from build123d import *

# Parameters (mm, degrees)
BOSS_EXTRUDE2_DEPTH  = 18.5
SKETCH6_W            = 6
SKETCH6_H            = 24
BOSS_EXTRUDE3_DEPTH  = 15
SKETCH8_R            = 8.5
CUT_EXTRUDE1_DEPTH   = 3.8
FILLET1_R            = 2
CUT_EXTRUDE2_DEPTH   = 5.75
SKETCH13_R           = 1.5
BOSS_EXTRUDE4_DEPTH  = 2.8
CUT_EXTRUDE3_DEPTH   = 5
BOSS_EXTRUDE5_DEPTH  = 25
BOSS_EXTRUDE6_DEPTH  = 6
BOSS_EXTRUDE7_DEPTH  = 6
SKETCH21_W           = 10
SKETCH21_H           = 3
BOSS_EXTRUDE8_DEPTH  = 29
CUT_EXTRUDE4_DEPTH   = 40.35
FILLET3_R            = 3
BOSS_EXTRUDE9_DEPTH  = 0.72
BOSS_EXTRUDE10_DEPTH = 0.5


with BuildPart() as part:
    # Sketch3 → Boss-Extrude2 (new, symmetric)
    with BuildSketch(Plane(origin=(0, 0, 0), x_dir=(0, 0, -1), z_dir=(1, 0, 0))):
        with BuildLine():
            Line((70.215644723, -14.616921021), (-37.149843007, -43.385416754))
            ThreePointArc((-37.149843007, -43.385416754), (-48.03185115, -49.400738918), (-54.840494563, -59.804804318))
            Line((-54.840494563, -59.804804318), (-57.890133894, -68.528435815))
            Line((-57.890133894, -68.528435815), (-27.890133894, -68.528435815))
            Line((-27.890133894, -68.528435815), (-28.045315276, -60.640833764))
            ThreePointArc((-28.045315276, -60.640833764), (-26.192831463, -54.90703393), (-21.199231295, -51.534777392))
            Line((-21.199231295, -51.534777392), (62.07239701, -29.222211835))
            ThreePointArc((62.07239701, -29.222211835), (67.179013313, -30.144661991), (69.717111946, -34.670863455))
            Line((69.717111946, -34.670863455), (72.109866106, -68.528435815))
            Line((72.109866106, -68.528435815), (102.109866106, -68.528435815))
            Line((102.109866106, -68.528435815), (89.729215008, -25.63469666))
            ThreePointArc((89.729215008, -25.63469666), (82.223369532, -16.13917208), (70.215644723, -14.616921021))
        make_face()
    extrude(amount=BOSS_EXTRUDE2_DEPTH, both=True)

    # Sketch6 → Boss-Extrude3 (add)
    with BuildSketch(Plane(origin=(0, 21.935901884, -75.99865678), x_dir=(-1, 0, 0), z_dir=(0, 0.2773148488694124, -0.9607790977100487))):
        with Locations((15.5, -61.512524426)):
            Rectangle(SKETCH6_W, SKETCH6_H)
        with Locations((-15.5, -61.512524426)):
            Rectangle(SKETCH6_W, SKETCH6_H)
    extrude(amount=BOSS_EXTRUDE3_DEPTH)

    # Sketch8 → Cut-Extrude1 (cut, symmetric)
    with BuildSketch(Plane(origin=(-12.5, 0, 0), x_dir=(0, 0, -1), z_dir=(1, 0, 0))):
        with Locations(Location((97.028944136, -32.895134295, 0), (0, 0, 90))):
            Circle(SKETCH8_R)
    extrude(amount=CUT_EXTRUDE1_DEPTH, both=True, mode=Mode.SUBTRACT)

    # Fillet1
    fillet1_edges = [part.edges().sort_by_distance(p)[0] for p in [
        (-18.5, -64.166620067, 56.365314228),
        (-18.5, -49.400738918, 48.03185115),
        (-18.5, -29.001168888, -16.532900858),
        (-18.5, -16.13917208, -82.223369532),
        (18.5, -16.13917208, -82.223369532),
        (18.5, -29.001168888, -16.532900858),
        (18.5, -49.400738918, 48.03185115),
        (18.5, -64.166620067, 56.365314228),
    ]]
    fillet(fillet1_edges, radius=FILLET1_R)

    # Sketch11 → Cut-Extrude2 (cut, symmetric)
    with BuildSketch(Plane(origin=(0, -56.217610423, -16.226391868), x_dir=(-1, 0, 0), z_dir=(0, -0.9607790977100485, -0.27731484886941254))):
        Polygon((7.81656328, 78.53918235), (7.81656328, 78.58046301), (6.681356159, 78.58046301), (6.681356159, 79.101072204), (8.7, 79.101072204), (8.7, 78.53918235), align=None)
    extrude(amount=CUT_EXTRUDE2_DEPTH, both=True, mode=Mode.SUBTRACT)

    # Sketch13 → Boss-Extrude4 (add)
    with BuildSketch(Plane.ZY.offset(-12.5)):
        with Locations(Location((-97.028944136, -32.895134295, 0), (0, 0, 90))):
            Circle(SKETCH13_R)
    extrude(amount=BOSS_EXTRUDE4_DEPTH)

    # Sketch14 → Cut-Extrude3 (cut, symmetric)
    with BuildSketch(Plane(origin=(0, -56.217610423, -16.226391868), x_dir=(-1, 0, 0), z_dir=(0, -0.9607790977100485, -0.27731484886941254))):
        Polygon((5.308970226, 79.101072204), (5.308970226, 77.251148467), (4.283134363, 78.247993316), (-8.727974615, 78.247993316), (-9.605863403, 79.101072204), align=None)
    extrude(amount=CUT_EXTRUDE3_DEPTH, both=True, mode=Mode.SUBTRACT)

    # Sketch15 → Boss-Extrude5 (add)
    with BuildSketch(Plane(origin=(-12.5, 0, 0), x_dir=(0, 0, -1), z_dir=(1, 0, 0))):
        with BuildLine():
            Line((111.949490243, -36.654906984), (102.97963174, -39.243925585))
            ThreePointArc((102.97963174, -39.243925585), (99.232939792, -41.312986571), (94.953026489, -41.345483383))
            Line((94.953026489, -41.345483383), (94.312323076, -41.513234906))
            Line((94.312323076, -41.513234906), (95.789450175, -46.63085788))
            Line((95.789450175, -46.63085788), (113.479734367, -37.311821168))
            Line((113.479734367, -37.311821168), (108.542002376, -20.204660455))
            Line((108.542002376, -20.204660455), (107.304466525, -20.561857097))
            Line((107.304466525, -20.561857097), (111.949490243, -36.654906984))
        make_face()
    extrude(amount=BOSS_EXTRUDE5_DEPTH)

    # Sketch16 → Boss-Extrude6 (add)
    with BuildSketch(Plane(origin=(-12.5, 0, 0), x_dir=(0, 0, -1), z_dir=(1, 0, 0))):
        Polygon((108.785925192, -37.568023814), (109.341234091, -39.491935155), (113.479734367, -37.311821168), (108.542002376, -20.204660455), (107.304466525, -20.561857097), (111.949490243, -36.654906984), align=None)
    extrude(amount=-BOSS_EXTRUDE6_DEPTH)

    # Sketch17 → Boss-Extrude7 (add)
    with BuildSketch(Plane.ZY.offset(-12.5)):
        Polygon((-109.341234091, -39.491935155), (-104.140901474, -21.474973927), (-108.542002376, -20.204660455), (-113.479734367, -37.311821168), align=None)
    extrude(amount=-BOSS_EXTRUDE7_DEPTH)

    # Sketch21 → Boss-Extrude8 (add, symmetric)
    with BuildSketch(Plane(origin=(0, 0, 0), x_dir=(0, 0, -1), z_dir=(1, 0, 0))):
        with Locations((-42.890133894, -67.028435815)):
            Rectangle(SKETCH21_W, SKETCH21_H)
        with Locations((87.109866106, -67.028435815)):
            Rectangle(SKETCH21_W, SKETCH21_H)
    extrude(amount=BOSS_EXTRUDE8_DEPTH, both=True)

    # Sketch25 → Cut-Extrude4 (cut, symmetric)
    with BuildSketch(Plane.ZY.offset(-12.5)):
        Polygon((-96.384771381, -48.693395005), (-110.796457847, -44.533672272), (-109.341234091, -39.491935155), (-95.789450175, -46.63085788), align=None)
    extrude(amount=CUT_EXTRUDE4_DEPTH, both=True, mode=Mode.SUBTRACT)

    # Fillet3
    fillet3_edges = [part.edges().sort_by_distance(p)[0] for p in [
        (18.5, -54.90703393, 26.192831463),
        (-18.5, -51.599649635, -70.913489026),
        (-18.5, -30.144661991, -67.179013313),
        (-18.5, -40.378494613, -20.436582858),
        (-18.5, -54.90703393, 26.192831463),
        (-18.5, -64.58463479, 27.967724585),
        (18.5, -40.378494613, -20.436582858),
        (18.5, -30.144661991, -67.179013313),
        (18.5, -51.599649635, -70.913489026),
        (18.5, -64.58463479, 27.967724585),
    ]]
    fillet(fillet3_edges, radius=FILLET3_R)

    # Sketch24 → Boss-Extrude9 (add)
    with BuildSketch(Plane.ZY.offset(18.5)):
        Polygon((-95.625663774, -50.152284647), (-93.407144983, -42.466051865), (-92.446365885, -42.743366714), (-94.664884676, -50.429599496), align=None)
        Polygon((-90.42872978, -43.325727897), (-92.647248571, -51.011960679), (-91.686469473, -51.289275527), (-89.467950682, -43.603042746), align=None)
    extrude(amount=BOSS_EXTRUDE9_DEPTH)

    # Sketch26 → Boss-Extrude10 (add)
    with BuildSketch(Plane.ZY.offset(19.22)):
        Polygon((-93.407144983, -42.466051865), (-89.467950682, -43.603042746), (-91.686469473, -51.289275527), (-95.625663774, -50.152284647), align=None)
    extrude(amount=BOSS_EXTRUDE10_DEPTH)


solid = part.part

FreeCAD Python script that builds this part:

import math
import FreeCAD as App
import Part
import Sketcher

V = App.Vector
Q = App.Units.Quantity


def edges_at(feature, points):
    """Names of the edges that pass closest to the given points."""
    edges = feature.Shape.Edges
    near = lambda p: min(range(len(edges)), key=lambda i: edges[i].distToShape(Part.Vertex(*p))[0])
    return sorted({f"Edge{near(p) + 1}" for p in points})

doc = App.newDocument("Part")
params = doc.addObject("Spreadsheet::Sheet", "Params")
for row, (alias, value) in enumerate([
    ("sketch1_radius", "16 mm"),
    ("sketch1_height", "30 mm"),
    ("pad1_length", "37 mm"),
    ("sketch2_width", "6 mm"),
    ("sketch2_height", "24 mm"),
    ("pad2_length", "15 mm"),
    ("sketch3_diameter", "17 mm"),
    ("pocket1_length", "7.6 mm"),
    ("fillet_radius", "2 mm"),
    ("pocket2_length", "11.5 mm"),
    ("sketch5_diameter", "3 mm"),
    ("pad3_length", "2.8 mm"),
    ("pocket3_length", "10 mm"),
    ("sketch7_length", "16.75 mm"),
    ("pad4_length", "25 mm"),
    ("sketch8_length", "16.75 mm"),
    ("pad5_length", "6 mm"),
    ("pad6_length", "6 mm"),
    ("sketch10_width", "3 mm"),
    ("sketch10_height", "10 mm"),
    ("pad7_length", "58 mm"),
    ("sketch11_length", "15 mm"),
    ("pocket4_length", "80.7 mm"),
    ("fillet2_radius", "3 mm"),
    ("sketch12_length", "8 mm"),
    ("sketch12_length2", "1 mm"),
    ("pad8_length", "0.72 mm"),
    ("sketch13_length", "8 mm"),
    ("sketch13_length2", "4.1 mm"),
    ("pad9_length", "0.5 mm"),
], start=1):
    params.set(f"A{row}", alias)
    params.set(f"B{row}", "=" + value)
    params.setAlias(f"B{row}", alias)

body = doc.addObject("PartDesign::Body", "Body")

# Sketch on YZ plane
sketch1 = body.newObject("Sketcher::SketchObject", "Sketch")
sketch1.AttachmentSupport = (doc.getObject("YZ_Plane"), [""])
sketch1.MapMode = "FlatFace"
sketch1.addGeometry(Part.LineSegment(V(-15, -70, 0), V(-43, 37, 0)), False)
sketch1.addGeometry(Part.ArcOfCircle(Part.Circle(V(-68, 30, 0), V(0, 0, 1), 26), math.radians(15), math.radians(71)), False)
sketch1.addGeometry(Part.LineSegment(V(-60, 55, 0), V(-69, 58, 0)), False)
sketch1.addGeometry(Part.LineSegment(V(-69, 58, 0), V(-69, 28, 0)), False)
sketch1.addGeometry(Part.LineSegment(V(-69, 28, 0), V(-61, 28, 0)), False)
sketch1.addGeometry(Part.ArcOfCircle(Part.Circle(V(-60, 19, 0), V(0, 0, 1), 9), math.radians(15), math.radians(91)), False)
sketch1.addGeometry(Part.LineSegment(V(-52, 21, 0), V(-29, -62, 0)), False)
sketch1.addGeometry(Part.ArcOfCircle(Part.Circle(V(-35, -64, 0), V(0, 0, 1), 6), math.radians(-86), math.radians(15)), False)
sketch1.addGeometry(Part.LineSegment(V(-35, -70, 0), V(-69, -72, 0)), False)
sketch1.addGeometry(Part.LineSegment(V(-69, -72, 0), V(-69, -102, 0)), False)
sketch1.addGeometry(Part.LineSegment(V(-69, -102, 0), V(-26, -90, 0)), False)
sketch1.addGeometry(Part.ArcOfCircle(Part.Circle(V(-30, -74, 0), V(0, 0, 1), 16), math.radians(-74), math.radians(15)), False)
sketch1.addConstraint(Sketcher.Constraint("Tangent", 0, 2, 1, 1))
sketch1.addConstraint(Sketcher.Constraint("Tangent", 1, 2, 2, 1))
sketch1.addConstraint(Sketcher.Constraint("Coincident", 2, 2, 3, 1))
sketch1.addConstraint(Sketcher.Constraint("Coincident", 3, 2, 4, 1))
sketch1.addConstraint(Sketcher.Constraint("Tangent", 4, 2, 5, 2))
sketch1.addConstraint(Sketcher.Constraint("Tangent", 5, 1, 6, 1))
sketch1.addConstraint(Sketcher.Constraint("Tangent", 6, 2, 7, 2))
sketch1.addConstraint(Sketcher.Constraint("Tangent", 7, 1, 8, 1))
sketch1.addConstraint(Sketcher.Constraint("Coincident", 8, 2, 9, 1))
sketch1.addConstraint(Sketcher.Constraint("Coincident", 9, 2, 10, 1))
sketch1.addConstraint(Sketcher.Constraint("Tangent", 10, 2, 11, 1))
sketch1.addConstraint(Sketcher.Constraint("Tangent", 11, 2, 0, 1))
sketch1.addConstraint(Sketcher.Constraint("Vertical", 3))
sketch1.addConstraint(Sketcher.Constraint("Vertical", 9))
sketch1.addConstraint(Sketcher.Constraint("Parallel", 0, 6))
sketch1.addConstraint(Sketcher.Constraint("Vertical", 3, 2, 8, 2))
sketch1.addConstraint(Sketcher.Constraint("Equal", 3, 9))
sketch1.addConstraint(Sketcher.Constraint("Radius", 11, 16.0))
sketch1.addConstraint(Sketcher.Constraint("DistanceY", 3, 2, 3, 1, 30.0))
sketch1.addConstraint(Sketcher.Constraint("Angle", 0, Q("105 deg")))
sketch1.addConstraint(Sketcher.Constraint("Angle", 10, Q("16.100012 deg")))
sketch1.addConstraint(Sketcher.Constraint("Radius", 1, 25.819671))
sketch1.addConstraint(Sketcher.Constraint("Radius", 5, 9.239136))
sketch1.addConstraint(Sketcher.Constraint("Radius", 7, 6.084952))
sketch1.addConstraint(Sketcher.Constraint("DistanceY", 7, 3, -1, 1, 63.647299))
sketch1.addConstraint(Sketcher.Constraint("DistanceX", 1, 3, 1, 2, 8.520499))
sketch1.addConstraint(Sketcher.Constraint("DistanceX", 8, 2, 11, 3, 38.456702))
sketch1.addConstraint(Sketcher.Constraint("Distance", 4, 7.889128))
sketch1.addConstraint(Sketcher.Constraint("DistanceY", -1, 1, 1, 3, 30.46722))
sketch1.addConstraint(Sketcher.Constraint("DistanceY", 11, 3, -1, 1, 74.356749))
sketch1.addConstraint(Sketcher.Constraint("DistanceY", -1, 1, 5, 1, 21.199231))
sketch1.addConstraint(Sketcher.Constraint("DistanceX", 6, 2, -1, 1, 29.222212))
sketch1.setExpression("Constraints[17]", "Params.sketch1_radius")
sketch1.setExpression("Constraints[18]", "Params.sketch1_height")
pad1 = body.newObject("PartDesign::Pad", "Pad")
pad1.Profile = sketch1
pad1.setExpression("Length", "Params.pad1_length")
pad1.Midplane = True

# Sketch on an angled plane
sketch2 = body.newObject("Sketcher::SketchObject", "Sketch001")
sketch2.Placement = App.Placement(V(0, 21.935902, -75.998657), App.Rotation(V(-1, 0, 0), V(0, 0.960779098, 0.277314849), V(0, 0.277314849, -0.960779098), "ZXY"))
sketch2.addGeometry(Part.LineSegment(V(12, -50, 0), V(12, -74, 0)), False)
sketch2.addGeometry(Part.LineSegment(V(12, -74, 0), V(18, -74, 0)), False)
sketch2.addGeometry(Part.LineSegment(V(18, -74, 0), V(18, -50, 0)), False)
sketch2.addGeometry(Part.LineSegment(V(18, -50, 0), V(12, -50, 0)), False)
sketch2.addGeometry(Part.LineSegment(V(-18, -50, 0), V(-18, -74, 0)), False)
sketch2.addGeometry(Part.LineSegment(V(-18, -74, 0), V(-12, -74, 0)), False)
sketch2.addGeometry(Part.LineSegment(V(-12, -74, 0), V(-12, -50, 0)), False)
sketch2.addGeometry(Part.LineSegment(V(-12, -50, 0), V(-18, -50, 0)), False)
sketch2.addConstraint(Sketcher.Constraint("Coincident", 0, 2, 1, 1))
sketch2.addConstraint(Sketcher.Constraint("Coincident", 1, 2, 2, 1))
sketch2.addConstraint(Sketcher.Constraint("Coincident", 2, 2, 3, 1))
sketch2.addConstraint(Sketcher.Constraint("Coincident", 3, 2, 0, 1))
sketch2.addConstraint(Sketcher.Constraint("Coincident", 4, 2, 5, 1))
sketch2.addConstraint(Sketcher.Constraint("Coincident", 5, 2, 6, 1))
sketch2.addConstraint(Sketcher.Constraint("Coincident", 6, 2, 7, 1))
sketch2.addConstraint(Sketcher.Constraint("Coincident", 7, 2, 4, 1))
sketch2.addConstraint(Sketcher.Constraint("Vertical", 0))
sketch2.addConstraint(Sketcher.Constraint("Horizontal", 1))
sketch2.addConstraint(Sketcher.Constraint("Vertical", 2))
sketch2.addConstraint(Sketcher.Constraint("Horizontal", 3))
sketch2.addConstraint(Sketcher.Constraint("Vertical", 4))
sketch2.addConstraint(Sketcher.Constraint("Horizontal", 5))
sketch2.addConstraint(Sketcher.Constraint("Vertical", 6))
sketch2.addConstraint(Sketcher.Constraint("Horizontal", 7))
sketch2.addConstraint(Sketcher.Constraint("Symmetric", 1, 2, 4, 2, -2))
sketch2.addConstraint(Sketcher.Constraint("Symmetric", 3, 2, 6, 2, -2))
sketch2.addConstraint(Sketcher.Constraint("DistanceX", 1, 1, 1, 2, 6.0))
sketch2.addConstraint(Sketcher.Constraint("DistanceY", 0, 2, 0, 1, 24.0))
sketch2.addConstraint(Sketcher.Constraint("DistanceX", 4, 2, 0, 2, 31.0))
sketch2.addConstraint(Sketcher.Constraint("DistanceY", 0, 2, -1, 1, 73.512524))
sketch2.setExpression("Constraints[18]", "Params.sketch2_width")
sketch2.setExpression("Constraints[19]", "Params.sketch2_height")
pad2 = body.newObject("PartDesign::Pad", "Pad001")
pad2.Profile = sketch2
pad2.setExpression("Length", "Params.pad2_length")

# Sketch on YZ plane
sketch3 = body.newObject("Sketcher::SketchObject", "Sketch002")
sketch3.AttachmentSupport = (doc.getObject("YZ_Plane"), [""])
sketch3.MapMode = "FlatFace"
sketch3.AttachmentOffset = App.Placement(V(0, 0, -12.5), App.Rotation())
sketch3.addGeometry(Part.Circle(V(-33, -97, 0), V(0, 0, 1), 8), False)
sketch3.addConstraint(Sketcher.Constraint("Diameter", 0, 17.0))
sketch3.addConstraint(Sketcher.Constraint("DistanceX", 0, 3, -1, 1, 32.895134))
sketch3.addConstraint(Sketcher.Constraint("DistanceY", 0, 3, -1, 1, 97.028944))
sketch3.setExpression("Constraints[0]", "Params.sketch3_diameter")
pocket1 = body.newObject("PartDesign::Pocket", "Pocket")
pocket1.Profile = sketch3
pocket1.setExpression("Length", "Params.pocket1_length")
pocket1.Midplane = True
doc.recompute()

fillet = body.newObject("PartDesign::Fillet", "Fillet")
fillet.Base = (pocket1, edges_at(pocket1, [
    (-18.5, -64.167, 56.365),
    (-18.5, -49.401, 48.032),
    (-18.5, -29.001, -16.533),
    (-18.5, -16.139, -82.223),
    (18.5, -16.139, -82.223),
    (18.5, -29.001, -16.533),
    (18.5, -49.401, 48.032),
    (18.5, -64.167, 56.365),
]))
fillet.setExpression("Radius", "Params.fillet_radius")

# Sketch on an angled plane
sketch4 = body.newObject("Sketcher::SketchObject", "Sketch003")
sketch4.Placement = App.Placement(V(0, -56.21761, -16.226392), App.Rotation(V(-1, 0, 0), V(0, 0.277314849, -0.960779098), V(0, -0.960779098, -0.277314849), "ZXY"))
sketch4.addGeometry(Part.LineSegment(V(7.817, 78.58, 0), V(7.817, 78.539, 0)), False)
sketch4.addGeometry(Part.LineSegment(V(7.817, 78.539, 0), V(8.7, 78.539, 0)), False)
sketch4.addGeometry(Part.LineSegment(V(8.7, 78.539, 0), V(8.7, 79.101, 0)), False)
sketch4.addGeometry(Part.LineSegment(V(8.7, 79.101, 0), V(6.681, 79.101, 0)), False)
sketch4.addGeometry(Part.LineSegment(V(6.681, 79.101, 0), V(6.681, 78.58, 0)), False)
sketch4.addGeometry(Part.LineSegment(V(6.681, 78.58, 0), V(7.817, 78.58, 0)), False)
sketch4.addConstraint(Sketcher.Constraint("Coincident", 0, 2, 1, 1))
sketch4.addConstraint(Sketcher.Constraint("Coincident", 1, 2, 2, 1))
sketch4.addConstraint(Sketcher.Constraint("Coincident", 2, 2, 3, 1))
sketch4.addConstraint(Sketcher.Constraint("Coincident", 3, 2, 4, 1))
sketch4.addConstraint(Sketcher.Constraint("Coincident", 4, 2, 5, 1))
sketch4.addConstraint(Sketcher.Constraint("Coincident", 5, 2, 0, 1))
sketch4.addConstraint(Sketcher.Constraint("Vertical", 0))
sketch4.addConstraint(Sketcher.Constraint("Horizontal", 1))
sketch4.addConstraint(Sketcher.Constraint("Vertical", 2))
sketch4.addConstraint(Sketcher.Constraint("Horizontal", 3))
sketch4.addConstraint(Sketcher.Constraint("Vertical", 4))
sketch4.addConstraint(Sketcher.Constraint("Horizontal", 5))
sketch4.addConstraint(Sketcher.Constraint("DistanceX", -1, 1, 1, 2, 8.7))
sketch4.addConstraint(Sketcher.Constraint("DistanceY", 0, 2, 0, 1, 0.041281))
sketch4.addConstraint(Sketcher.Constraint("DistanceY", 2, 1, 2, 2, 0.56189))
sketch4.addConstraint(Sketcher.Constraint("DistanceX", 1, 1, 1, 2, 0.883437))
sketch4.addConstraint(Sketcher.Constraint("DistanceX", 3, 2, 3, 1, 2.018644))
sketch4.addConstraint(Sketcher.Constraint("DistanceY", -1, 1, 0, 2, 78.539182))
pocket2 = body.newObject("PartDesign::Pocket", "Pocket001")
pocket2.Profile = sketch4
pocket2.setExpression("Length", "Params.pocket2_length")
pocket2.Midplane = True

# Sketch on YZ plane
sketch5 = body.newObject("Sketcher::SketchObject", "Sketch004")
sketch5.AttachmentSupport = (doc.getObject("YZ_Plane"), [""])
sketch5.MapMode = "FlatFace"
sketch5.AttachmentOffset = App.Placement(V(0, 0, 12.5), App.Rotation())
sketch5.addGeometry(Part.Circle(V(-32.9, -97, 0), V(0, 0, 1), 1.5), False)
sketch5.addConstraint(Sketcher.Constraint("Diameter", 0, 3.0))
sketch5.addConstraint(Sketcher.Constraint("DistanceX", 0, 3, -1, 1, 32.895134))
sketch5.addConstraint(Sketcher.Constraint("DistanceY", 0, 3, -1, 1, 97.028944))
sketch5.setExpression("Constraints[0]", "Params.sketch5_diameter")
pad3 = body.newObject("PartDesign::Pad", "Pad002")
pad3.Profile = sketch5
pad3.setExpression("Length", "Params.pad3_length")
pad3.Reversed = True

# Sketch on an angled plane
sketch6 = body.newObject("Sketcher::SketchObject", "Sketch005")
sketch6.Placement = App.Placement(V(0, -56.21761, -16.226392), App.Rotation(V(-1, 0, 0), V(0, 0.277314849, -0.960779098), V(0, -0.960779098, -0.277314849), "ZXY"))
sketch6.addGeometry(Part.LineSegment(V(5.3, 77.3, 0), V(5.3, 79.1, 0)), False)
sketch6.addGeometry(Part.LineSegment(V(5.3, 79.1, 0), V(-9.6, 79.1, 0)), False)
sketch6.addGeometry(Part.LineSegment(V(-9.6, 79.1, 0), V(-8.7, 78.2, 0)), False)
sketch6.addGeometry(Part.LineSegment(V(-8.7, 78.2, 0), V(4.3, 78.2, 0)), False)
sketch6.addGeometry(Part.LineSegment(V(4.3, 78.2, 0), V(5.3, 77.3, 0)), False)
sketch6.addConstraint(Sketcher.Constraint("Coincident", 0, 2, 1, 1))
sketch6.addConstraint(Sketcher.Constraint("Coincident", 1, 2, 2, 1))
sketch6.addConstraint(Sketcher.Constraint("Coincident", 2, 2, 3, 1))
sketch6.addConstraint(Sketcher.Constraint("Coincident", 3, 2, 4, 1))
sketch6.addConstraint(Sketcher.Constraint("Coincident", 4, 2, 0, 1))
sketch6.addConstraint(Sketcher.Constraint("Vertical", 0))
sketch6.addConstraint(Sketcher.Constraint("Horizontal", 1))
sketch6.addConstraint(Sketcher.Constraint("Horizontal", 3))
sketch6.addConstraint(Sketcher.Constraint("Parallel", 2, 4))
sketch6.addConstraint(Sketcher.Constraint("Distance", 4, 1.430398))
sketch6.addConstraint(Sketcher.Constraint("DistanceX", 3, 1, 3, 2, 13.011109))
sketch6.addConstraint(Sketcher.Constraint("DistanceX", 1, 2, 1, 1, 14.914834))
sketch6.addConstraint(Sketcher.Constraint("DistanceY", 0, 1, 0, 2, 1.849924))
sketch6.addConstraint(Sketcher.Constraint("DistanceX", -1, 1, 0, 2, 5.30897))
sketch6.addConstraint(Sketcher.Constraint("DistanceY", -1, 1, 4, 2, 77.251149))
pocket3 = body.newObject("PartDesign::Pocket", "Pocket002")
pocket3.Profile = sketch6
pocket3.setExpression("Length", "Params.pocket3_length")
pocket3.Midplane = True

# Sketch on YZ plane
sketch7 = body.newObject("Sketcher::SketchObject", "Sketch006")
sketch7.AttachmentSupport = (doc.getObject("YZ_Plane"), [""])
sketch7.MapMode = "FlatFace"
sketch7.AttachmentOffset = App.Placement(V(0, 0, -12.5), App.Rotation())
sketch7.addGeometry(Part.LineSegment(V(-36.7, -111.9, 0), V(-39.2, -103, 0)), False)
sketch7.addGeometry(Part.ArcOfCircle(Part.Circle(V(-32.9, -97, 0), V(0, 0, 1), 8.7), math.radians(166), math.radians(223)), False)
sketch7.addGeometry(Part.LineSegment(V(-41.3, -95, 0), V(-41.5, -94.3, 0)), False)
sketch7.addGeometry(Part.LineSegment(V(-41.5, -94.3, 0), V(-46.6, -95.8, 0)), False)
sketch7.addGeometry(Part.LineSegment(V(-46.6, -95.8, 0), V(-37.3, -113.5, 0)), False)
sketch7.addGeometry(Part.LineSegment(V(-37.3, -113.5, 0), V(-20.2, -108.5, 0)), False)
sketch7.addGeometry(Part.LineSegment(V(-20.2, -108.5, 0), V(-20.6, -107.3, 0)), False)
sketch7.addGeometry(Part.LineSegment(V(-20.6, -107.3, 0), V(-36.7, -111.9, 0)), False)
sketch7.addConstraint(Sketcher.Constraint("Coincident", 0, 2, 1, 2))
sketch7.addConstraint(Sketcher.Constraint("Coincident", 1, 1, 2, 1))
sketch7.addConstraint(Sketcher.Constraint("Coincident", 2, 2, 3, 1))
sketch7.addConstraint(Sketcher.Constraint("Coincident", 3, 2, 4, 1))
sketch7.addConstraint(Sketcher.Constraint("Coincident", 4, 2, 5, 1))
sketch7.addConstraint(Sketcher.Constraint("Coincident", 5, 2, 6, 1))
sketch7.addConstraint(Sketcher.Constraint("Coincident", 6, 2, 7, 1))
sketch7.addConstraint(Sketcher.Constraint("Coincident", 7, 2, 0, 1))
sketch7.addConstraint(Sketcher.Constraint("Perpendicular", 0, 3))
sketch7.addConstraint(Sketcher.Constraint("Parallel", 3, 5))
sketch7.addConstraint(Sketcher.Constraint("Perpendicular", 5, 6))
sketch7.addConstraint(Sketcher.Constraint("Perpendicular", 6, 7))
sketch7.addConstraint(Sketcher.Constraint("Angle", 0, Q("106.100012 deg")))
sketch7.addConstraint(Sketcher.Constraint("Radius", 1, 8.701599))
sketch7.addConstraint(Sketcher.Constraint("Distance", 7, 16.75))
sketch7.addConstraint(Sketcher.Constraint("Distance", 2, 0.6623))
sketch7.addConstraint(Sketcher.Constraint("DistanceX", 2, 2, 1, 3, 8.618101))
sketch7.addConstraint(Sketcher.Constraint("Distance", 5, 17.805509))
sketch7.addConstraint(Sketcher.Constraint("DistanceY", 0, 2, -1, 1, 102.979632))
sketch7.addConstraint(Sketcher.Constraint("DistanceY", 3, 2, -1, 1, 95.78945))
sketch7.addConstraint(Sketcher.Constraint("DistanceX", 4, 2, -1, 1, 37.311821))
sketch7.addConstraint(Sketcher.Constraint("DistanceY", 7, 2, -1, 1, 111.94949))
sketch7.addConstraint(Sketcher.Constraint("DistanceX", 0, 2, 1, 3, 6.348791))
sketch7.addConstraint(Sketcher.Constraint("DistanceX", 1, 1, 1, 3, 8.450349))
sketch7.addConstraint(Sketcher.Constraint("DistanceY", 4, 2, 1, 3, 16.45079))
sketch7.setExpression("Constraints[14]", "Params.sketch7_length")
pad4 = body.newObject("PartDesign::Pad", "Pad003")
pad4.Profile = sketch7
pad4.setExpression("Length", "Params.pad4_length")

# Sketch on YZ plane
sketch8 = body.newObject("Sketcher::SketchObject", "Sketch007")
sketch8.AttachmentSupport = (doc.getObject("YZ_Plane"), [""])
sketch8.MapMode = "FlatFace"
sketch8.AttachmentOffset = App.Placement(V(0, 0, -12.5), App.Rotation())
sketch8.addGeometry(Part.LineSegment(V(-37.6, -108.8, 0), V(-39.5, -109.3, 0)), False)
sketch8.addGeometry(Part.LineSegment(V(-39.5, -109.3, 0), V(-37.3, -113.5, 0)), False)
sketch8.addGeometry(Part.LineSegment(V(-37.3, -113.5, 0), V(-20.2, -108.5, 0)), False)
sketch8.addGeometry(Part.LineSegment(V(-20.2, -108.5, 0), V(-20.6, -107.3, 0)), False)
sketch8.addGeometry(Part.LineSegment(V(-20.6, -107.3, 0), V(-36.7, -111.9, 0)), False)
sketch8.addGeometry(Part.LineSegment(V(-36.7, -111.9, 0), V(-37.6, -108.8, 0)), False)
sketch8.addConstraint(Sketcher.Constraint("Coincident", 0, 2, 1, 1))
sketch8.addConstraint(Sketcher.Constraint("Coincident", 1, 2, 2, 1))
sketch8.addConstraint(Sketcher.Constraint("Coincident", 2, 2, 3, 1))
sketch8.addConstraint(Sketcher.Constraint("Coincident", 3, 2, 4, 1))
sketch8.addConstraint(Sketcher.Constraint("Coincident", 4, 2, 5, 1))
sketch8.addConstraint(Sketcher.Constraint("Coincident", 5, 2, 0, 1))
sketch8.addConstraint(Sketcher.Constraint("Parallel", 0, 2))
sketch8.addConstraint(Sketcher.Constraint("Perpendicular", 2, 3))
sketch8.addConstraint(Sketcher.Constraint("Perpendicular", 3, 4))
sketch8.addConstraint(Sketcher.Constraint("Perpendicular", 4, 5))
sketch8.addConstraint(Sketcher.Constraint("Angle", 0, Q("-163.899988 deg")))
sketch8.addConstraint(Sketcher.Constraint("Distance", 4, 16.75))
sketch8.addConstraint(Sketcher.Constraint("DistanceY", 1, 2, 0, 2, 4.1385))
sketch8.addConstraint(Sketcher.Constraint("Distance", 0, 2.002449))
sketch8.addConstraint(Sketcher.Constraint("Distance", 2, 17.805509))
sketch8.addConstraint(Sketcher.Constraint("Distance", 5, 3.292708))
sketch8.addConstraint(Sketcher.Constraint("DistanceX", 1, 2, -1, 1, 37.311821))
sketch8.addConstraint(Sketcher.Constraint("DistanceY", 4, 2, -1, 1, 111.94949))
sketch8.setExpression("Constraints[11]", "Params.sketch8_length")
pad5 = body.newObject("PartDesign::Pad", "Pad004")
pad5.Profile = sketch8
pad5.setExpression("Length", "Params.pad5_length")
pad5.Reversed = True

# Sketch on YZ plane
sketch9 = body.newObject("Sketcher::SketchObject", "Sketch008")
sketch9.AttachmentSupport = (doc.getObject("YZ_Plane"), [""])
sketch9.MapMode = "FlatFace"
sketch9.AttachmentOffset = App.Placement(V(0, 0, 12.5), App.Rotation())
sketch9.addGeometry(Part.LineSegment(V(-39.5, -109.3, 0), V(-21.5, -104.1, 0)), False)
sketch9.addGeometry(Part.LineSegment(V(-21.5, -104.1, 0), V(-20.2, -108.5, 0)), False)
sketch9.addGeometry(Part.LineSegment(V(-20.2, -108.5, 0), V(-37.3, -113.5, 0)), False)
sketch9.addGeometry(Part.LineSegment(V(-37.3, -113.5, 0), V(-39.5, -109.3, 0)), False)
sketch9.addConstraint(Sketcher.Constraint("Coincident", 0, 2, 1, 1))
sketch9.addConstraint(Sketcher.Constraint("Coincident", 1, 2, 2, 1))
sketch9.addConstraint(Sketcher.Constraint("Coincident", 2, 2, 3, 1))
sketch9.addConstraint(Sketcher.Constraint("Coincident", 3, 2, 0, 1))
sketch9.addConstraint(Sketcher.Constraint("Perpendicular", 0, 1))
sketch9.addConstraint(Sketcher.Constraint("Perpendicular", 1, 2))
sketch9.addConstraint(Sketcher.Constraint("Angle", 0, Q("16.100012 deg")))
sketch9.addConstraint(Sketcher.Constraint("DistanceY", 0, 2, -1, 1, 104.140901))
sketch9.addConstraint(Sketcher.Constraint("DistanceY", 1, 2, 0, 2, 4.401101))
sketch9.addConstraint(Sketcher.Constraint("DistanceY", 2, 2, 3, 2, 4.1385))
sketch9.addConstraint(Sketcher.Constraint("Distance", 0, 18.752449))
sketch9.addConstraint(Sketcher.Constraint("DistanceX", 1, 2, -1, 1, 20.20466))
pad6 = body.newObject("PartDesign::Pad", "Pad005")
pad6.Profile = sketch9
pad6.setExpression("Length", "Params.pad6_length")

# Sketch on YZ plane
sketch10 = body.newObject("Sketcher::SketchObject", "Sketch009")
sketch10.AttachmentSupport = (doc.getObject("YZ_Plane"), [""])
sketch10.MapMode = "FlatFace"
sketch10.addGeometry(Part.LineSegment(V(-65.5, 47.9, 0), V(-68.5, 47.9, 0)), False)
sketch10.addGeometry(Part.LineSegment(V(-68.5, 47.9, 0), V(-68.5, 37.9, 0)), False)
sketch10.addGeometry(Part.LineSegment(V(-68.5, 37.9, 0), V(-65.5, 37.9, 0)), False)
sketch10.addGeometry(Part.LineSegment(V(-65.5, 37.9, 0), V(-65.5, 47.9, 0)), False)
sketch10.addGeometry(Part.LineSegment(V(-65.5, -82.1, 0), V(-68.5, -82.1, 0)), False)
sketch10.addGeometry(Part.LineSegment(V(-68.5, -82.1, 0), V(-68.5, -92.1, 0)), False)
sketch10.addGeometry(Part.LineSegment(V(-68.5, -92.1, 0), V(-65.5, -92.1, 0)), False)
sketch10.addGeometry(Part.LineSegment(V(-65.5, -92.1, 0), V(-65.5, -82.1, 0)), False)
sketch10.addConstraint(Sketcher.Constraint("Coincident", 0, 2, 1, 1))
sketch10.addConstraint(Sketcher.Constraint("Coincident", 1, 2, 2, 1))
sketch10.addConstraint(Sketcher.Constraint("Coincident", 2, 2, 3, 1))
sketch10.addConstraint(Sketcher.Constraint("Coincident", 3, 2, 0, 1))
sketch10.addConstraint(Sketcher.Constraint("Coincident", 4, 2, 5, 1))
sketch10.addConstraint(Sketcher.Constraint("Coincident", 5, 2, 6, 1))
sketch10.addConstraint(Sketcher.Constraint("Coincident", 6, 2, 7, 1))
sketch10.addConstraint(Sketcher.Constraint("Coincident", 7, 2, 4, 1))
sketch10.addConstraint(Sketcher.Constraint("Horizontal", 0))
sketch10.addConstraint(Sketcher.Constraint("Vertical", 1))
sketch10.addConstraint(Sketcher.Constraint("Horizontal", 2))
sketch10.addConstraint(Sketcher.Constraint("Vertical", 3))
sketch10.addConstraint(Sketcher.Constraint("Horizontal", 4))
sketch10.addConstraint(Sketcher.Constraint("Vertical", 5))
sketch10.addConstraint(Sketcher.Constraint("Horizontal", 6))
sketch10.addConstraint(Sketcher.Constraint("Vertical", 7))
sketch10.addConstraint(Sketcher.Constraint("Vertical", 1, 2, 4, 2))
sketch10.addConstraint(Sketcher.Constraint("Vertical", 3, 2, 6, 2))
sketch10.addConstraint(Sketcher.Constraint("Equal", 3, 5))
sketch10.addConstraint(Sketcher.Constraint("DistanceX", 0, 2, 0, 1, 3.0))
sketch10.addConstraint(Sketcher.Constraint("DistanceY", 1, 2, 1, 1, 10.0))
sketch10.addConstraint(Sketcher.Constraint("DistanceY", 4, 2, 1, 2, 120.0))
sketch10.addConstraint(Sketcher.Constraint("DistanceX", 0, 2, -1, 1, 68.528436))
sketch10.addConstraint(Sketcher.Constraint("DistanceY", -1, 1, 0, 2, 47.890134))
sketch10.setExpression("Constraints[19]", "Params.sketch10_width")
sketch10.setExpression("Constraints[20]", "Params.sketch10_height")
pad7 = body.newObject("PartDesign::Pad", "Pad006")
pad7.Profile = sketch10
pad7.setExpression("Length", "Params.pad7_length")
pad7.Midplane = True

# Sketch on YZ plane
sketch11 = body.newObject("Sketcher::SketchObject", "Sketch010")
sketch11.AttachmentSupport = (doc.getObject("YZ_Plane"), [""])
sketch11.MapMode = "FlatFace"
sketch11.AttachmentOffset = App.Placement(V(0, 0, 12.5), App.Rotation())
sketch11.addGeometry(Part.LineSegment(V(-44.5, -110.8, 0), V(-48.7, -96.4, 0)), False)
sketch11.addGeometry(Part.LineSegment(V(-48.7, -96.4, 0), V(-46.6, -95.8, 0)), False)
sketch11.addGeometry(Part.LineSegment(V(-46.6, -95.8, 0), V(-39.5, -109.3, 0)), False)
sketch11.addGeometry(Part.LineSegment(V(-39.5, -109.3, 0), V(-44.5, -110.8, 0)), False)
sketch11.addConstraint(Sketcher.Constraint("Coincident", 0, 2, 1, 1))
sketch11.addConstraint(Sketcher.Constraint("Coincident", 1, 2, 2, 1))
sketch11.addConstraint(Sketcher.Constraint("Coincident", 2, 2, 3, 1))
sketch11.addConstraint(Sketcher.Constraint("Coincident", 3, 2, 0, 1))
sketch11.addConstraint(Sketcher.Constraint("Perpendicular", 0, 1))
sketch11.addConstraint(Sketcher.Constraint("Parallel", 1, 3))
sketch11.addConstraint(Sketcher.Constraint("Distance", 0, 15.0))
sketch11.addConstraint(Sketcher.Constraint("Angle", 0, Q("106.100012 deg")))
sketch11.addConstraint(Sketcher.Constraint("Distance", 2, 15.317149))
sketch11.addConstraint(Sketcher.Constraint("Distance", 3, 5.247551))
sketch11.addConstraint(Sketcher.Constraint("DistanceY", 0, 2, -1, 1, 96.384771))
sketch11.addConstraint(Sketcher.Constraint("DistanceX", 0, 2, -1, 1, 48.693395))
sketch11.setExpression("Constraints[6]", "Params.sketch11_length")
pocket4 = body.newObject("PartDesign::Pocket", "Pocket003")
pocket4.Profile = sketch11
pocket4.setExpression("Length", "Params.pocket4_length")
pocket4.Midplane = True
doc.recompute()

fillet2 = body.newObject("PartDesign::Fillet", "Fillet001")
fillet2.Base = (pocket4, edges_at(pocket4, [
    (18.5, -54.907, 26.193),
    (-18.5, -51.6, -70.913),
    (-18.5, -30.145, -67.179),
    (-18.5, -40.378, -20.437),
    (-18.5, -54.907, 26.193),
    (-18.5, -64.585, 27.968),
    (18.5, -40.378, -20.437),
    (18.5, -30.145, -67.179),
    (18.5, -51.6, -70.913),
    (18.5, -64.585, 27.968),
]))
fillet2.setExpression("Radius", "Params.fillet2_radius")

# Sketch on YZ plane
sketch12 = body.newObject("Sketcher::SketchObject", "Sketch011")
sketch12.AttachmentSupport = (doc.getObject("YZ_Plane"), [""])
sketch12.MapMode = "FlatFace"
sketch12.AttachmentOffset = App.Placement(V(0, 0, -18.5), App.Rotation())
sketch12.addGeometry(Part.LineSegment(V(-42.5, -93.4, 0), V(-50.2, -95.6, 0)), False)
sketch12.addGeometry(Part.LineSegment(V(-50.2, -95.6, 0), V(-50.4, -94.7, 0)), False)
sketch12.addGeometry(Part.LineSegment(V(-50.4, -94.7, 0), V(-42.7, -92.4, 0)), False)
sketch12.addGeometry(Part.LineSegment(V(-42.7, -92.4, 0), V(-42.5, -93.4, 0)), False)
sketch12.addGeometry(Part.LineSegment(V(-43.3, -90.4, 0), V(-51, -92.6, 0)), False)
sketch12.addGeometry(Part.LineSegment(V(-51, -92.6, 0), V(-51.3, -91.7, 0)), False)
sketch12.addGeometry(Part.LineSegment(V(-51.3, -91.7, 0), V(-43.6, -89.5, 0)), False)
sketch12.addGeometry(Part.LineSegment(V(-43.6, -89.5, 0), V(-43.3, -90.4, 0)), False)
sketch12.addConstraint(Sketcher.Constraint("Coincident", 0, 2, 1, 1))
sketch12.addConstraint(Sketcher.Constraint("Coincident", 1, 2, 2, 1))
sketch12.addConstraint(Sketcher.Constraint("Coincident", 2, 2, 3, 1))
sketch12.addConstraint(Sketcher.Constraint("Coincident", 3, 2, 0, 1))
sketch12.addConstraint(Sketcher.Constraint("Coincident", 4, 2, 5, 1))
sketch12.addConstraint(Sketcher.Constraint("Coincident", 5, 2, 6, 1))
sketch12.addConstraint(Sketcher.Constraint("Coincident", 6, 2, 7, 1))
sketch12.addConstraint(Sketcher.Constraint("Coincident", 7, 2, 4, 1))
sketch12.addConstraint(Sketcher.Constraint("Perpendicular", 0, 1))
sketch12.addConstraint(Sketcher.Constraint("Perpendicular", 1, 2))
sketch12.addConstraint(Sketcher.Constraint("Perpendicular", 2, 3))
sketch12.addConstraint(Sketcher.Constraint("Perpendicular", 3, 4))
sketch12.addConstraint(Sketcher.Constraint("Perpendicular", 4, 5))
sketch12.addConstraint(Sketcher.Constraint("Perpendicular", 5, 6))
sketch12.addConstraint(Sketcher.Constraint("Perpendicular", 6, 7))
sketch12.addConstraint(Sketcher.Constraint("Equal", 2, 4))
sketch12.addConstraint(Sketcher.Constraint("Equal", 3, 5))
sketch12.addConstraint(Sketcher.Constraint("Distance", 0, 8.0))
sketch12.addConstraint(Sketcher.Constraint("Distance", 1, 1.0))
sketch12.addConstraint(Sketcher.Constraint("Angle", 0, Q("-163.899988 deg")))
sketch12.addConstraint(Sketcher.Constraint("DistanceX", 1, 2, -1, 1, 50.429599))
sketch12.addConstraint(Sketcher.Constraint("DistanceX", 4, 2, -1, 1, 51.011961))
sketch12.addConstraint(Sketcher.Constraint("DistanceY", 4, 2, -1, 1, 92.647249))
sketch12.addConstraint(Sketcher.Constraint("DistanceY", 0, 2, -1, 1, 95.625664))
sketch12.setExpression("Constraints[17]", "Params.sketch12_length")
sketch12.setExpression("Constraints[18]", "Params.sketch12_length2")
pad8 = body.newObject("PartDesign::Pad", "Pad007")
pad8.Profile = sketch12
pad8.setExpression("Length", "Params.pad8_length")
pad8.Reversed = True

# Sketch on YZ plane
sketch13 = body.newObject("Sketcher::SketchObject", "Sketch012")
sketch13.AttachmentSupport = (doc.getObject("YZ_Plane"), [""])
sketch13.MapMode = "FlatFace"
sketch13.AttachmentOffset = App.Placement(V(0, 0, -19.22), App.Rotation())
sketch13.addGeometry(Part.LineSegment(V(-43.6, -89.5, 0), V(-42.5, -93.4, 0)), False)
sketch13.addGeometry(Part.LineSegment(V(-42.5, -93.4, 0), V(-50.2, -95.6, 0)), False)
sketch13.addGeometry(Part.LineSegment(V(-50.2, -95.6, 0), V(-51.3, -91.7, 0)), False)
sketch13.addGeometry(Part.LineSegment(V(-51.3, -91.7, 0), V(-43.6, -89.5, 0)), False)
sketch13.addConstraint(Sketcher.Constraint("Coincident", 0, 2, 1, 1))
sketch13.addConstraint(Sketcher.Constraint("Coincident", 1, 2, 2, 1))
sketch13.addConstraint(Sketcher.Constraint("Coincident", 2, 2, 3, 1))
sketch13.addConstraint(Sketcher.Constraint("Coincident", 3, 2, 0, 1))
sketch13.addConstraint(Sketcher.Constraint("Perpendicular", 0, 1))
sketch13.addConstraint(Sketcher.Constraint("Perpendicular", 1, 2))
sketch13.addConstraint(Sketcher.Constraint("Perpendicular", 2, 3))
sketch13.addConstraint(Sketcher.Constraint("Distance", 1, 8.0))
sketch13.addConstraint(Sketcher.Constraint("Angle", 0, Q("-73.899988 deg")))
sketch13.addConstraint(Sketcher.Constraint("Distance", 0, 4.1))
sketch13.addConstraint(Sketcher.Constraint("DistanceX", 0, 2, -1, 1, 42.466052))
sketch13.addConstraint(Sketcher.Constraint("DistanceY", 2, 2, -1, 1, 91.686469))
sketch13.setExpression("Constraints[7]", "Params.sketch13_length")
sketch13.setExpression("Constraints[9]", "Params.sketch13_length2")
pad9 = body.newObject("PartDesign::Pad", "Pad008")
pad9.Profile = sketch13
pad9.setExpression("Length", "Params.pad9_length")
pad9.Reversed = True

doc.recompute()
